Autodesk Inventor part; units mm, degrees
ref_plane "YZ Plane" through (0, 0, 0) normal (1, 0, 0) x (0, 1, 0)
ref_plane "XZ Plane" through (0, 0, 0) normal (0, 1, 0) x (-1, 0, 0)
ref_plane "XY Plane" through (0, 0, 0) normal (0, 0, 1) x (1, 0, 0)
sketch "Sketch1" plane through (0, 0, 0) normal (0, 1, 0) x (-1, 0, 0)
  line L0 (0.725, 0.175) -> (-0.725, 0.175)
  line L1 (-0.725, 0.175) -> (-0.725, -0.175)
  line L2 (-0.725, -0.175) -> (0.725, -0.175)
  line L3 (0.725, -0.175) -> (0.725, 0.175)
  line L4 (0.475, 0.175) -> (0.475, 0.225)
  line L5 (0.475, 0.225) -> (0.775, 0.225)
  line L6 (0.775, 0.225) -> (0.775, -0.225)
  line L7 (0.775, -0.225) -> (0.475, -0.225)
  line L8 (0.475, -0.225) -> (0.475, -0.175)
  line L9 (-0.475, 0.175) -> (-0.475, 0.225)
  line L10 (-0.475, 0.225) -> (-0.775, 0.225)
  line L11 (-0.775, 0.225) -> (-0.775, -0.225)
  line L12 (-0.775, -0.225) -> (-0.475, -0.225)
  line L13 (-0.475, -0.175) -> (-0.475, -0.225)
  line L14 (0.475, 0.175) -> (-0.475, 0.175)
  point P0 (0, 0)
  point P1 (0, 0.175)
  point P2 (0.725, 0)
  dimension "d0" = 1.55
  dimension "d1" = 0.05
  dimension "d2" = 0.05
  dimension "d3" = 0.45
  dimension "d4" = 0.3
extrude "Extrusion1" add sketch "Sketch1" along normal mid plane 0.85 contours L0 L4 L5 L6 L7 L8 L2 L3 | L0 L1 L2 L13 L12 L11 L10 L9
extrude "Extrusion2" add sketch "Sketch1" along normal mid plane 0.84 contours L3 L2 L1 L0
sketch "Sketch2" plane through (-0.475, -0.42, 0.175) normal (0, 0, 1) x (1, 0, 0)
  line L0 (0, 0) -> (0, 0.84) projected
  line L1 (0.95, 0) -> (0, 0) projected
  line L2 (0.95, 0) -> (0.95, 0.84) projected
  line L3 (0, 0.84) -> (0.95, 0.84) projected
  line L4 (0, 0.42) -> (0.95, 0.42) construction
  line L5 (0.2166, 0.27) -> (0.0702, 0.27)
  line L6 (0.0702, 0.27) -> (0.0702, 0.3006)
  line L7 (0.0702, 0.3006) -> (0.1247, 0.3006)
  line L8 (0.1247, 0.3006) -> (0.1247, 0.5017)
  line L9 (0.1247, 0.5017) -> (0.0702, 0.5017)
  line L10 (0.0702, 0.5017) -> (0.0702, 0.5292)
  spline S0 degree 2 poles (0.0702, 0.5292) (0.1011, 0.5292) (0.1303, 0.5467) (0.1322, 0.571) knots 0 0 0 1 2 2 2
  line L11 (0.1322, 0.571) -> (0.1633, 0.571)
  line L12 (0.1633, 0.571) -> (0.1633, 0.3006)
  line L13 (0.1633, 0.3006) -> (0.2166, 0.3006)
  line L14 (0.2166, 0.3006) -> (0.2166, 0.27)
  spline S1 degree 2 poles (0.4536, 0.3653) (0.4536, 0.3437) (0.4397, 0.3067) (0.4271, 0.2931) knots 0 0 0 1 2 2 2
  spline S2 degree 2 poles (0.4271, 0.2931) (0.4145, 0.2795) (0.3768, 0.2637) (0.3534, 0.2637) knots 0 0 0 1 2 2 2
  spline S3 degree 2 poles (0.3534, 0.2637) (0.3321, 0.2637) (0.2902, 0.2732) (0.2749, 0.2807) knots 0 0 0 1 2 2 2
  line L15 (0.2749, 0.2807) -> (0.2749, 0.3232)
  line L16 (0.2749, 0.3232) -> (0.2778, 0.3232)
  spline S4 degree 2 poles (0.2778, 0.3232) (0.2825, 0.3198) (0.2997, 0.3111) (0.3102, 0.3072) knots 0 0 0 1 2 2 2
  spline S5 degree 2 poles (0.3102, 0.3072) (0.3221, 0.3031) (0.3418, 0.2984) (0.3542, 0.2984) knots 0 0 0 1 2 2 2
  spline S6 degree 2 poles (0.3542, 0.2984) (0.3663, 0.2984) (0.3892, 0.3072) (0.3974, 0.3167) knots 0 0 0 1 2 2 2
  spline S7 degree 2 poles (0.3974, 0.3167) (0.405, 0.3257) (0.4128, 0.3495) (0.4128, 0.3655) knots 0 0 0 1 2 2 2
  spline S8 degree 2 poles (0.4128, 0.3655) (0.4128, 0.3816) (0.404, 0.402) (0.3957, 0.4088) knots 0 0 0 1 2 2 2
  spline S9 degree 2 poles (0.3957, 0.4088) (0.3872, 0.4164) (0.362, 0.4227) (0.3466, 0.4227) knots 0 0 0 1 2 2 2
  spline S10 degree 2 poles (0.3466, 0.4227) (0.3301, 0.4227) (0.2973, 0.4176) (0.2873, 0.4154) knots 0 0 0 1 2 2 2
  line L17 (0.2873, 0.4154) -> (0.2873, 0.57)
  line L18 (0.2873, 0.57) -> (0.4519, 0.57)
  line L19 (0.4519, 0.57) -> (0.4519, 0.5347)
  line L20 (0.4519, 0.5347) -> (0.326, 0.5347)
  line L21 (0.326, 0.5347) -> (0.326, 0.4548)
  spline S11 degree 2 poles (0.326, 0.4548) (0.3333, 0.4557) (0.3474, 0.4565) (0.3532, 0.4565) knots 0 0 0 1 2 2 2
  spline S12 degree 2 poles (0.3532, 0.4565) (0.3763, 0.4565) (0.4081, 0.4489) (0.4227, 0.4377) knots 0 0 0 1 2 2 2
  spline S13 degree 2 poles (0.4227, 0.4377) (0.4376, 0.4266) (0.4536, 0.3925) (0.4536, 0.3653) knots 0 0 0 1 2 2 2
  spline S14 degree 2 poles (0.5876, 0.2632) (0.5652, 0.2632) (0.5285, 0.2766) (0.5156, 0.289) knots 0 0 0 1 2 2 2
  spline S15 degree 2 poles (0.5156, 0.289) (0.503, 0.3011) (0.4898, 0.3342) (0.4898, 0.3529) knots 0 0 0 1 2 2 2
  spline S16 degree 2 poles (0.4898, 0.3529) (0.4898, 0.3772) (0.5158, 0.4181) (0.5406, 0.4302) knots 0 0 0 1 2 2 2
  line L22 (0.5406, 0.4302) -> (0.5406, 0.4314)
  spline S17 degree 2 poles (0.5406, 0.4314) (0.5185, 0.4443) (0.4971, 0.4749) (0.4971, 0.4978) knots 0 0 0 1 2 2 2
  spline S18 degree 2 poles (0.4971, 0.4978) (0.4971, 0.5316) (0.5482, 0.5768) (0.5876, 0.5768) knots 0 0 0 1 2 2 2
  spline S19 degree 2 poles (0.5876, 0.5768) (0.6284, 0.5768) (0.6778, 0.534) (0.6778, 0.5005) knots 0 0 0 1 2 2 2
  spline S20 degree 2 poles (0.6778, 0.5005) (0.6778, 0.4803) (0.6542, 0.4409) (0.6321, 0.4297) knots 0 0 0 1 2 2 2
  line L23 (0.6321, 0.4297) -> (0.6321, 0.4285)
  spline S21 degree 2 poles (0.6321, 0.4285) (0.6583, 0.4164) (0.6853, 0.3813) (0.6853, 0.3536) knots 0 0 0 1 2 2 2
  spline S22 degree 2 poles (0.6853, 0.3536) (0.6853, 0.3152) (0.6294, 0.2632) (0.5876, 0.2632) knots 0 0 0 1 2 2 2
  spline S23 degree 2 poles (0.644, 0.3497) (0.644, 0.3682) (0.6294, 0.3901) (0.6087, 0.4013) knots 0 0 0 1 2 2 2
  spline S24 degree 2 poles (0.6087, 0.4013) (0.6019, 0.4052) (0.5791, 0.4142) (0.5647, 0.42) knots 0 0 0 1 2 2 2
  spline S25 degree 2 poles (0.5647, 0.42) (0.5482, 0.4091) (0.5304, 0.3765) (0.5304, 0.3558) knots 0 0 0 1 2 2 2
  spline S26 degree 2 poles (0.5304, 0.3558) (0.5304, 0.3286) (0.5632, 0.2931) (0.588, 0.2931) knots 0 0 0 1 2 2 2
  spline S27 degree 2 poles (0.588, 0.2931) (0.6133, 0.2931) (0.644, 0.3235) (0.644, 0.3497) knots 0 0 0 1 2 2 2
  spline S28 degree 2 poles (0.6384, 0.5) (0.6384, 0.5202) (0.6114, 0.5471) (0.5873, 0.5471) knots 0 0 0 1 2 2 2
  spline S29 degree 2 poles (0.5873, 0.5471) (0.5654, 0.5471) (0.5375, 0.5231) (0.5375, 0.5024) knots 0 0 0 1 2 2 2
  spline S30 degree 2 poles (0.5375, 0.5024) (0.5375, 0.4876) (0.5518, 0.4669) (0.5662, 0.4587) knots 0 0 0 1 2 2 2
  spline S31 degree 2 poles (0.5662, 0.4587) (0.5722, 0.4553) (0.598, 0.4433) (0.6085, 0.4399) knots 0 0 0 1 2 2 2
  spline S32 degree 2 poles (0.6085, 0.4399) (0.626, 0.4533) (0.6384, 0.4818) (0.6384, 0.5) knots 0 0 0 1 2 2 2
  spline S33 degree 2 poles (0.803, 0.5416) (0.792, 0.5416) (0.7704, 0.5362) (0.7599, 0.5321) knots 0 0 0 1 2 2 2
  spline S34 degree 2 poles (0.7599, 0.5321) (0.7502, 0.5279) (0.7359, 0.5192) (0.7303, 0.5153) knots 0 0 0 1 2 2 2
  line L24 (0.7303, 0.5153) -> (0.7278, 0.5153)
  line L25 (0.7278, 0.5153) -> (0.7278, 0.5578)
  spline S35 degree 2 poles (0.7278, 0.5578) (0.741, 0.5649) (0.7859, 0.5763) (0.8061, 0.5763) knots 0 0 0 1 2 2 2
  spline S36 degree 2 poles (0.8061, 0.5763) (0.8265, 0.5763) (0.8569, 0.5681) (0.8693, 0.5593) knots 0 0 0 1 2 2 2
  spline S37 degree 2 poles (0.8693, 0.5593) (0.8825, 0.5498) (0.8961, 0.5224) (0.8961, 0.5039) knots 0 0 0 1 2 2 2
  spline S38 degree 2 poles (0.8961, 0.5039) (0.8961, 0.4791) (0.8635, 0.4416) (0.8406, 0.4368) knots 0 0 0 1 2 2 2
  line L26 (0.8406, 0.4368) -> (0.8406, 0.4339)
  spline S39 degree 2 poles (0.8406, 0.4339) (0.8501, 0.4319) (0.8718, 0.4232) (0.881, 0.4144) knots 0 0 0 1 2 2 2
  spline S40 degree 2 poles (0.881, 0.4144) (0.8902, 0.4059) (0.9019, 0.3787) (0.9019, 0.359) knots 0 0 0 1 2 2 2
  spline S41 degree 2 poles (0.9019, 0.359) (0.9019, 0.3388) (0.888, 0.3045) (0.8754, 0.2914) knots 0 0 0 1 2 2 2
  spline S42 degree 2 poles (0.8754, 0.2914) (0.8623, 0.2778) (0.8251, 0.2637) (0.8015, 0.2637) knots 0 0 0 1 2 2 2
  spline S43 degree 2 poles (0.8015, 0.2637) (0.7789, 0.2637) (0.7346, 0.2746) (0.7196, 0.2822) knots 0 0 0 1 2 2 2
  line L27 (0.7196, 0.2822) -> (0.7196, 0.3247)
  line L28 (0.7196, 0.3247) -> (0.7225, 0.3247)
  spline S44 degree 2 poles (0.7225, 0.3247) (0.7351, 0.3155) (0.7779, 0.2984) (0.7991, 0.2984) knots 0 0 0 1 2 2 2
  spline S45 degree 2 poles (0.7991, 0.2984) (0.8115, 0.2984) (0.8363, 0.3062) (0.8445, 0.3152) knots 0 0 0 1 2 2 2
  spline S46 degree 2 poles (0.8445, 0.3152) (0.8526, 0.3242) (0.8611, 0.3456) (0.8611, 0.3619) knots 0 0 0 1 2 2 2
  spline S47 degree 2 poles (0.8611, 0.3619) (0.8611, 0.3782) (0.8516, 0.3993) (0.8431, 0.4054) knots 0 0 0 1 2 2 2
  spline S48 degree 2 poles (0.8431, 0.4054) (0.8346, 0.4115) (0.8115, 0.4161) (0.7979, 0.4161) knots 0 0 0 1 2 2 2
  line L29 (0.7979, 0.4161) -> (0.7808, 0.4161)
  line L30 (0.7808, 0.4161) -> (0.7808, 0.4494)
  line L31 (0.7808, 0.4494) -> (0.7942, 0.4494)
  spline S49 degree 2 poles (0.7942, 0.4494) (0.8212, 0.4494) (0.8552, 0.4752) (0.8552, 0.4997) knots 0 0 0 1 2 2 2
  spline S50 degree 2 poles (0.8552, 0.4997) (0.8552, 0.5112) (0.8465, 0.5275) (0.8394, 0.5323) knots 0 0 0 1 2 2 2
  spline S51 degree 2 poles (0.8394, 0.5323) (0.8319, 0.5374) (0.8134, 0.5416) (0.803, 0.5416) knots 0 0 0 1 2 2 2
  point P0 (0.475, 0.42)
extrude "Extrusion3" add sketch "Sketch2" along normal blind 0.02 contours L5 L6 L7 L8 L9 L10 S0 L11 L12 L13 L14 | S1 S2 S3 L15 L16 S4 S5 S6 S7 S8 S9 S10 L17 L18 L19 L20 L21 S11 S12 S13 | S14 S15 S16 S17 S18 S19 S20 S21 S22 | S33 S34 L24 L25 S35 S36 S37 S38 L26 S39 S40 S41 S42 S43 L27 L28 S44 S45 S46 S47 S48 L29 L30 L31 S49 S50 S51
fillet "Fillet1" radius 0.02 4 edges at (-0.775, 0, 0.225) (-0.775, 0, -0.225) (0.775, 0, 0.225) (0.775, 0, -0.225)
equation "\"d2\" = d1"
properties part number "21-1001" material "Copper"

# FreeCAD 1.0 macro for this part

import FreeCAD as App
import Part
import Sketcher
from FreeCAD import Vector


def edges_at(feature, points):
    """Names of the edges that pass closest to the given points."""
    edges = feature.Shape.Edges
    near = lambda p: min(range(len(edges)), key=lambda i: edges[i].distToShape(Part.Vertex(*p))[0])
    return sorted({f"Edge{near(p) + 1}" for p in points})

doc = App.newDocument("Part")
body = doc.addObject("PartDesign::Body", "Body")
body.AllowCompound = True

# Sketch on XZ plane
sketch1 = body.newObject("Sketcher::SketchObject", "Sketch")
sketch1.AttachmentSupport = (doc.getObject("XZ_Plane"), [""])
sketch1.MapMode = "FlatFace"
sketch1.addGeometry(Part.LineSegment(Vector(-0.47, 0.17, 0), Vector(-0.72, 0.17, 0)), False)
sketch1.addGeometry(Part.LineSegment(Vector(-0.72, 0.17, 0), Vector(-0.72, -0.17, 0)), False)
sketch1.addGeometry(Part.LineSegment(Vector(-0.72, -0.17, 0), Vector(-0.47, -0.17, 0)), False)
sketch1.addGeometry(Part.LineSegment(Vector(-0.47, -0.17, 0), Vector(-0.47, -0.23, 0)), False)
sketch1.addGeometry(Part.LineSegment(Vector(-0.47, -0.23, 0), Vector(-0.78, -0.23, 0)), False)
sketch1.addGeometry(Part.LineSegment(Vector(-0.78, -0.23, 0), Vector(-0.78, 0.23, 0)), False)
sketch1.addGeometry(Part.LineSegment(Vector(-0.78, 0.23, 0), Vector(-0.47, 0.23, 0)), False)
sketch1.addGeometry(Part.LineSegment(Vector(-0.47, 0.23, 0), Vector(-0.47, 0.17, 0)), False)
sketch1.addGeometry(Part.LineSegment(Vector(0.72, 0.17, 0), Vector(0.47, 0.17, 0)), False)
sketch1.addGeometry(Part.LineSegment(Vector(0.47, 0.17, 0), Vector(0.47, 0.23, 0)), False)
sketch1.addGeometry(Part.LineSegment(Vector(0.47, 0.23, 0), Vector(0.78, 0.23, 0)), False)
sketch1.addGeometry(Part.LineSegment(Vector(0.78, 0.23, 0), Vector(0.78, -0.23, 0)), False)
sketch1.addGeometry(Part.LineSegment(Vector(0.78, -0.23, 0), Vector(0.47, -0.23, 0)), False)
sketch1.addGeometry(Part.LineSegment(Vector(0.47, -0.23, 0), Vector(0.47, -0.17, 0)), False)
sketch1.addGeometry(Part.LineSegment(Vector(0.47, -0.17, 0), Vector(0.72, -0.17, 0)), False)
sketch1.addGeometry(Part.LineSegment(Vector(0.72, -0.17, 0), Vector(0.72, 0.17, 0)), False)
sketch1.addConstraint(Sketcher.Constraint("Coincident", 0, 2, 1, 1))
sketch1.addConstraint(Sketcher.Constraint("Coincident", 1, 2, 2, 1))
sketch1.addConstraint(Sketcher.Constraint("Coincident", 2, 2, 3, 1))
sketch1.addConstraint(Sketcher.Constraint("Coincident", 3, 2, 4, 1))
sketch1.addConstraint(Sketcher.Constraint("Coincident", 4, 2, 5, 1))
sketch1.addConstraint(Sketcher.Constraint("Coincident", 5, 2, 6, 1))
sketch1.addConstraint(Sketcher.Constraint("Coincident", 6, 2, 7, 1))
sketch1.addConstraint(Sketcher.Constraint("Coincident", 7, 2, 0, 1))
sketch1.addConstraint(Sketcher.Constraint("Coincident", 8, 2, 9, 1))
sketch1.addConstraint(Sketcher.Constraint("Coincident", 9, 2, 10, 1))
sketch1.addConstraint(Sketcher.Constraint("Coincident", 10, 2, 11, 1))
sketch1.addConstraint(Sketcher.Constraint("Coincident", 11, 2, 12, 1))
sketch1.addConstraint(Sketcher.Constraint("Coincident", 12, 2, 13, 1))
sketch1.addConstraint(Sketcher.Constraint("Coincident", 13, 2, 14, 1))
sketch1.addConstraint(Sketcher.Constraint("Coincident", 14, 2, 15, 1))
sketch1.addConstraint(Sketcher.Constraint("Coincident", 15, 2, 8, 1))
sketch1.addConstraint(Sketcher.Constraint("Horizontal", 0))
sketch1.addConstraint(Sketcher.Constraint("Vertical", 1))
sketch1.addConstraint(Sketcher.Constraint("Horizontal", 2))
sketch1.addConstraint(Sketcher.Constraint("Vertical", 3))
sketch1.addConstraint(Sketcher.Constraint("Horizontal", 4))
sketch1.addConstraint(Sketcher.Constraint("Vertical", 5))
sketch1.addConstraint(Sketcher.Constraint("Horizontal", 6))
sketch1.addConstraint(Sketcher.Constraint("Vertical", 7))
sketch1.addConstraint(Sketcher.Constraint("Horizontal", 8))
sketch1.addConstraint(Sketcher.Constraint("Vertical", 9))
sketch1.addConstraint(Sketcher.Constraint("Horizontal", 10))
sketch1.addConstraint(Sketcher.Constraint("Vertical", 11))
sketch1.addConstraint(Sketcher.Constraint("Horizontal", 12))
sketch1.addConstraint(Sketcher.Constraint("Vertical", 13))
sketch1.addConstraint(Sketcher.Constraint("Horizontal", 14))
sketch1.addConstraint(Sketcher.Constraint("Vertical", 15))
sketch1.addConstraint(Sketcher.Constraint("Symmetric", 2, 2, 8, 2, -1, 1))
sketch1.addConstraint(Sketcher.Constraint("Symmetric", 4, 2, 10, 2, -1, 1))
sketch1.addConstraint(Sketcher.Constraint("Symmetric", 6, 2, 12, 2, -1, 1))
sketch1.addConstraint(Sketcher.Constraint("Symmetric", 0, 2, 14, 2, -1, 1))
sketch1.addConstraint(Sketcher.Constraint("Symmetric", 7, 2, 8, 2, -2))
sketch1.addConstraint(Sketcher.Constraint("Horizontal", 6, 2, 9, 2))
sketch1.addConstraint(Sketcher.Constraint("DistanceX", 4, 2, 4, 1, 0.3))
sketch1.addConstraint(Sketcher.Constraint("DistanceY", 3, 2, 3, 1, 0.05))
sketch1.addConstraint(Sketcher.Constraint("DistanceY", 5, 1, 5, 2, 0.45))
sketch1.addConstraint(Sketcher.Constraint("DistanceX", 4, 2, 1, 2, 0.05))
sketch1.addConstraint(Sketcher.Constraint("DistanceX", 0, 2, 8, 2, 1.2))
pad1 = body.newObject("PartDesign::Pad", "Pad")
pad1.Profile = sketch1
pad1.Length = 0.85
pad1.Midplane = True

# Sketch on XZ plane
sketch2 = body.newObject("Sketcher::SketchObject", "Sketch001")
sketch2.AttachmentSupport = (doc.getObject("XZ_Plane"), [""])
sketch2.MapMode = "FlatFace"
sketch2.addGeometry(Part.LineSegment(Vector(-0.72, -0.17, 0), Vector(-0.72, 0.17, 0)), False)
sketch2.addGeometry(Part.LineSegment(Vector(-0.72, 0.17, 0), Vector(0.72, 0.17, 0)), False)
sketch2.addGeometry(Part.LineSegment(Vector(0.72, 0.17, 0), Vector(0.72, -0.17, 0)), False)
sketch2.addGeometry(Part.LineSegment(Vector(0.72, -0.17, 0), Vector(-0.72, -0.17, 0)), False)
sketch2.addConstraint(Sketcher.Constraint("Coincident", 0, 2, 1, 1))
sketch2.addConstraint(Sketcher.Constraint("Coincident", 1, 2, 2, 1))
sketch2.addConstraint(Sketcher.Constraint("Coincident", 2, 2, 3, 1))
sketch2.addConstraint(Sketcher.Constraint("Coincident", 3, 2, 0, 1))
sketch2.addConstraint(Sketcher.Constraint("Vertical", 0))
sketch2.addConstraint(Sketcher.Constraint("Horizontal", 1))
sketch2.addConstraint(Sketcher.Constraint("Vertical", 2))
sketch2.addConstraint(Sketcher.Constraint("Horizontal", 3))
sketch2.addConstraint(Sketcher.Constraint("Symmetric", 0, 2, 2, 2, -1, 1))
sketch2.addConstraint(Sketcher.Constraint("DistanceX", 1, 1, 1, 2, 1.45))
sketch2.addConstraint(Sketcher.Constraint("DistanceY", 0, 1, 0, 2, 0.35))
pad2 = body.newObject("PartDesign::Pad", "Pad001")
pad2.Profile = sketch2
pad2.Length = 0.84
pad2.Midplane = True

# Sketch on XY plane
sketch3 = body.newObject("Sketcher::SketchObject", "Sketch002")
sketch3.AttachmentSupport = (doc.getObject("XY_Plane"), [""])
sketch3.MapMode = "FlatFace"
sketch3.AttachmentOffset = App.Placement(Vector(0, 0, 0.175), App.Rotation())
sketch3.addGeometry(Part.LineSegment(Vector(-0.4048, -0.15, 0), Vector(-0.2584, -0.15, 0)), False)
sketch3.addGeometry(Part.LineSegment(Vector(-0.2584, -0.15, 0), Vector(-0.2584, -0.1194, 0)), False)
sketch3.addGeometry(Part.LineSegment(Vector(-0.2584, -0.1194, 0), Vector(-0.3117, -0.1194, 0)), False)
sketch3.addGeometry(Part.LineSegment(Vector(-0.3117, -0.1194, 0), Vector(-0.3117, 0.151, 0)), False)
sketch3.addGeometry(Part.LineSegment(Vector(-0.3117, 0.151, 0), Vector(-0.3428, 0.151, 0)), False)
sketch3.addGeometry(Part.BSplineCurve([Vector(-0.4048, 0.1092, 0), Vector(-0.3739, 0.1092, 0), Vector(-0.3447, 0.1267, 0), Vector(-0.3428, 0.151, 0)], [3, 1, 3], [0, 1, 2], False, 2, [1, 1, 1, 1], False), False)
sketch3.addGeometry(Part.LineSegment(Vector(-0.4048, 0.1092, 0), Vector(-0.4048, 0.0817, 0)), False)
sketch3.addGeometry(Part.LineSegment(Vector(-0.4048, 0.0817, 0), Vector(-0.3503, 0.0817, 0)), False)
sketch3.addGeometry(Part.LineSegment(Vector(-0.3503, 0.0817, 0), Vector(-0.3503, -0.1194, 0)), False)
sketch3.addGeometry(Part.LineSegment(Vector(-0.3503, -0.1194, 0), Vector(-0.4048, -0.1194, 0)), False)
sketch3.addGeometry(Part.LineSegment(Vector(-0.4048, -0.1194, 0), Vector(-0.4048, -0.15, 0)), False)
sketch3.addGeometry(Part.BSplineCurve([Vector(-0.0214, -0.0547, 0), Vector(-0.0214, -0.0763, 0), Vector(-0.0353, -0.1133, 0), Vector(-0.0479, -0.1269, 0)], [3, 1, 3], [0, 1, 2], False, 2, [1, 1, 1, 1], False), False)
sketch3.addGeometry(Part.BSplineCurve([Vector(-0.0523, 0.0177, 0), Vector(-0.0374, 0.0066, 0), Vector(-0.0214, -0.0275, 0), Vector(-0.0214, -0.0547, 0)], [3, 1, 3], [0, 1, 2], False, 2, [1, 1, 1, 1], False), False)
sketch3.addGeometry(Part.BSplineCurve([Vector(-0.1218, 0.0365, 0), Vector(-0.0987, 0.0365, 0), Vector(-0.0669, 0.0289, 0), Vector(-0.0523, 0.0177, 0)], [3, 1, 3], [0, 1, 2], False, 2, [1, 1, 1, 1], False), False)
sketch3.addGeometry(Part.BSplineCurve([Vector(-0.149, 0.0348, 0), Vector(-0.1417, 0.0357, 0), Vector(-0.1276, 0.0365, 0), Vector(-0.1218, 0.0365, 0)], [3, 1, 3], [0, 1, 2], False, 2, [1, 1, 1, 1], False), False)
sketch3.addGeometry(Part.LineSegment(Vector(-0.149, 0.0348, 0), Vector(-0.149, 0.1147, 0)), False)
sketch3.addGeometry(Part.LineSegment(Vector(-0.149, 0.1147, 0), Vector(-0.0231, 0.1147, 0)), False)
sketch3.addGeometry(Part.LineSegment(Vector(-0.0231, 0.1147, 0), Vector(-0.0231, 0.15, 0)), False)
sketch3.addGeometry(Part.LineSegment(Vector(-0.0231, 0.15, 0), Vector(-0.1877, 0.15, 0)), False)
sketch3.addGeometry(Part.LineSegment(Vector(-0.1877, 0.15, 0), Vector(-0.1877, -0.0046, 0)), False)
sketch3.addGeometry(Part.BSplineCurve([Vector(-0.1284, 0.0027, 0), Vector(-0.1449, 0.0027, 0), Vector(-0.1777, -0.0024, 0), Vector(-0.1877, -0.0046, 0)], [3, 1, 3], [0, 1, 2], False, 2, [1, 1, 1, 1], False), False)
sketch3.addGeometry(Part.BSplineCurve([Vector(-0.0793, -0.0112, 0), Vector(-0.0878, -0.0036, 0), Vector(-0.113, 0.0027, 0), Vector(-0.1284, 0.0027, 0)], [3, 1, 3], [0, 1, 2], False, 2, [1, 1, 1, 1], False), False)
sketch3.addGeometry(Part.BSplineCurve([Vector(-0.0622, -0.0545, 0), Vector(-0.0622, -0.0384, 0), Vector(-0.071, -0.018, 0), Vector(-0.0793, -0.0112, 0)], [3, 1, 3], [0, 1, 2], False, 2, [1, 1, 1, 1], False), False)
sketch3.addGeometry(Part.BSplineCurve([Vector(-0.0776, -0.1033, 0), Vector(-0.07, -0.0943, 0), Vector(-0.0622, -0.0705, 0), Vector(-0.0622, -0.0545, 0)], [3, 1, 3], [0, 1, 2], False, 2, [1, 1, 1, 1], False), False)
sketch3.addGeometry(Part.BSplineCurve([Vector(-0.1208, -0.1216, 0), Vector(-0.1087, -0.1216, 0), Vector(-0.0858, -0.1128, 0), Vector(-0.0776, -0.1033, 0)], [3, 1, 3], [0, 1, 2], False, 2, [1, 1, 1, 1], False), False)
sketch3.addGeometry(Part.BSplineCurve([Vector(-0.1648, -0.1128, 0), Vector(-0.1529, -0.1169, 0), Vector(-0.1332, -0.1216, 0), Vector(-0.1208, -0.1216, 0)], [3, 1, 3], [0, 1, 2], False, 2, [1, 1, 1, 1], False), False)
sketch3.addGeometry(Part.BSplineCurve([Vector(-0.1972, -0.0968, 0), Vector(-0.1925, -0.1002, 0), Vector(-0.1753, -0.1089, 0), Vector(-0.1648, -0.1128, 0)], [3, 1, 3], [0, 1, 2], False, 2, [1, 1, 1, 1], False), False)
sketch3.addGeometry(Part.LineSegment(Vector(-0.1972, -0.0968, 0), Vector(-0.2001, -0.0968, 0)), False)
sketch3.addGeometry(Part.LineSegment(Vector(-0.2001, -0.0968, 0), Vector(-0.2001, -0.1393, 0)), False)
sketch3.addGeometry(Part.BSplineCurve([Vector(-0.1216, -0.1563, 0), Vector(-0.1429, -0.1563, 0), Vector(-0.1848, -0.1468, 0), Vector(-0.2001, -0.1393, 0)], [3, 1, 3], [0, 1, 2], False, 2, [1, 1, 1, 1], False), False)
sketch3.addGeometry(Part.BSplineCurve([Vector(-0.0479, -0.1269, 0), Vector(-0.0605, -0.1405, 0), Vector(-0.0982, -0.1563, 0), Vector(-0.1216, -0.1563, 0)], [3, 1, 3], [0, 1, 2], False, 2, [1, 1, 1, 1], False), False)
sketch3.addGeometry(Part.BSplineCurve([Vector(0.1126, -0.1568, 0), Vector(0.0902, -0.1568, 0), Vector(0.0535, -0.1434, 0), Vector(0.0406, -0.131, 0)], [3, 1, 3], [0, 1, 2], False, 2, [1, 1, 1, 1], False), False)
sketch3.addGeometry(Part.BSplineCurve([Vector(0.2103, -0.0664, 0), Vector(0.2103, -0.1048, 0), Vector(0.1544, -0.1568, 0), Vector(0.1126, -0.1568, 0)], [3, 1, 3], [0, 1, 2], False, 2, [1, 1, 1, 1], False), False)
sketch3.addGeometry(Part.BSplineCurve([Vector(0.1571, 0.0097, 0), Vector(0.1833, -0.0036, 0), Vector(0.2103, -0.0387, 0), Vector(0.2103, -0.0664, 0)], [3, 1, 3], [0, 1, 2], False, 2, [1, 1, 1, 1], False), False)
sketch3.addGeometry(Part.BSplineCurve([Vector(0.2028, 0.0805, 0), Vector(0.2028, 0.0603, 0), Vector(0.1792, 0.0209, 0), Vector(0.1571, 0.0097, 0)], [3, 1, 3], [0, 1, 2], False, 2, [1, 1, 1, 1], False), False)
sketch3.addGeometry(Part.BSplineCurve([Vector(0.1126, 0.1568, 0), Vector(0.1534, 0.1568, 0), Vector(0.2028, 0.114, 0), Vector(0.2028, 0.0805, 0)], [3, 1, 3], [0, 1, 2], False, 2, [1, 1, 1, 1], False), False)
sketch3.addGeometry(Part.BSplineCurve([Vector(0.0221, 0.0778, 0), Vector(0.0221, 0.1116, 0), Vector(0.0732, 0.1568, 0), Vector(0.1126, 0.1568, 0)], [3, 1, 3], [0, 1, 2], False, 2, [1, 1, 1, 1], False), False)
sketch3.addGeometry(Part.BSplineCurve([Vector(0.0656, 0.0102, 0), Vector(0.0435, 0.0243, 0), Vector(0.0221, 0.0549, 0), Vector(0.0221, 0.0778, 0)], [3, 1, 3], [0, 1, 2], False, 2, [1, 1, 1, 1], False), False)
sketch3.addGeometry(Part.BSplineCurve([Vector(0.0148, -0.0671, 0), Vector(0.0148, -0.0428, 0), Vector(0.0408, -0.0019, 0), Vector(0.0656, 0.0102, 0)], [3, 1, 3], [0, 1, 2], False, 2, [1, 1, 1, 1], False), False)
sketch3.addGeometry(Part.BSplineCurve([Vector(0.0406, -0.131, 0), Vector(0.028, -0.1189, 0), Vector(0.0148, -0.0858, 0), Vector(0.0148, -0.0671, 0)], [3, 1, 3], [0, 1, 2], False, 2, [1, 1, 1, 1], False), False)
sketch3.addGeometry(Part.BSplineCurve([Vector(0.169, -0.0703, 0), Vector(0.169, -0.0518, 0), Vector(0.1544, -0.0299, 0), Vector(0.1337, -0.0187, 0)], [3, 1, 3], [0, 1, 2], False, 2, [1, 1, 1, 1], False), False)
sketch3.addGeometry(Part.BSplineCurve([Vector(0.113, -0.1269, 0), Vector(0.1383, -0.1269, 0), Vector(0.169, -0.0965, 0), Vector(0.169, -0.0703, 0)], [3, 1, 3], [0, 1, 2], False, 2, [1, 1, 1, 1], False), False)
sketch3.addGeometry(Part.BSplineCurve([Vector(0.0554, -0.0642, 0), Vector(0.0554, -0.0914, 0), Vector(0.0882, -0.1269, 0), Vector(0.113, -0.1269, 0)], [3, 1, 3], [0, 1, 2], False, 2, [1, 1, 1, 1], False), False)
sketch3.addGeometry(Part.BSplineCurve([Vector(0.0897, 0, 0), Vector(0.0732, -0.0109, 0), Vector(0.0554, -0.0435, 0), Vector(0.0554, -0.0642, 0)], [3, 1, 3], [0, 1, 2], False, 2, [1, 1, 1, 1], False), False)
sketch3.addGeometry(Part.BSplineCurve([Vector(0.1337, -0.0187, 0), Vector(0.1269, -0.0148, 0), Vector(0.1041, -0.0058, 0), Vector(0.0897, 0, 0)], [3, 1, 3], [0, 1, 2], False, 2, [1, 1, 1, 1], False), False)
sketch3.addGeometry(Part.BSplineCurve([Vector(0.1634, 0.08, 0), Vector(0.1634, 0.1002, 0), Vector(0.1364, 0.1271, 0), Vector(0.1123, 0.1271, 0)], [3, 1, 3], [0, 1, 2], False, 2, [1, 1, 1, 1], False), False)
sketch3.addGeometry(Part.BSplineCurve([Vector(0.1335, 0.0199, 0), Vector(0.151, 0.0333, 0), Vector(0.1634, 0.0618, 0), Vector(0.1634, 0.08, 0)], [3, 1, 3], [0, 1, 2], False, 2, [1, 1, 1, 1], False), False)
sketch3.addGeometry(Part.BSplineCurve([Vector(0.0912, 0.0387, 0), Vector(0.0972, 0.0353, 0), Vector(0.123, 0.0233, 0), Vector(0.1335, 0.0199, 0)], [3, 1, 3], [0, 1, 2], False, 2, [1, 1, 1, 1], False), False)
sketch3.addGeometry(Part.BSplineCurve([Vector(0.0625, 0.0824, 0), Vector(0.0625, 0.0676, 0), Vector(0.0768, 0.0469, 0), Vector(0.0912, 0.0387, 0)], [3, 1, 3], [0, 1, 2], False, 2, [1, 1, 1, 1], False), False)
sketch3.addGeometry(Part.BSplineCurve([Vector(0.1123, 0.1271, 0), Vector(0.0904, 0.1271, 0), Vector(0.0625, 0.1031, 0), Vector(0.0625, 0.0824, 0)], [3, 1, 3], [0, 1, 2], False, 2, [1, 1, 1, 1], False), False)
sketch3.addGeometry(Part.BSplineCurve([Vector(0.328, 0.1216, 0), Vector(0.317, 0.1216, 0), Vector(0.2954, 0.1162, 0), Vector(0.2849, 0.1121, 0)], [3, 1, 3], [0, 1, 2], False, 2, [1, 1, 1, 1], False), False)
sketch3.addGeometry(Part.BSplineCurve([Vector(0.3644, 0.1123, 0), Vector(0.3569, 0.1174, 0), Vector(0.3384, 0.1216, 0), Vector(0.328, 0.1216, 0)], [3, 1, 3], [0, 1, 2], False, 2, [1, 1, 1, 1], False), False)
sketch3.addGeometry(Part.BSplineCurve([Vector(0.3802, 0.0797, 0), Vector(0.3802, 0.0912, 0), Vector(0.3715, 0.1075, 0), Vector(0.3644, 0.1123, 0)], [3, 1, 3], [0, 1, 2], False, 2, [1, 1, 1, 1], False), False)
sketch3.addGeometry(Part.BSplineCurve([Vector(0.3192, 0.0294, 0), Vector(0.3462, 0.0294, 0), Vector(0.3802, 0.0552, 0), Vector(0.3802, 0.0797, 0)], [3, 1, 3], [0, 1, 2], False, 2, [1, 1, 1, 1], False), False)
sketch3.addGeometry(Part.LineSegment(Vector(0.3192, 0.0294, 0), Vector(0.3058, 0.0294, 0)), False)
sketch3.addGeometry(Part.LineSegment(Vector(0.3058, 0.0294, 0), Vector(0.3058, -0.0039, 0)), False)
sketch3.addGeometry(Part.LineSegment(Vector(0.3058, -0.0039, 0), Vector(0.3229, -0.0039, 0)), False)
sketch3.addGeometry(Part.BSplineCurve([Vector(0.3681, -0.0146, 0), Vector(0.3596, -0.0085, 0), Vector(0.3365, -0.0039, 0), Vector(0.3229, -0.0039, 0)], [3, 1, 3], [0, 1, 2], False, 2, [1, 1, 1, 1], False), False)
sketch3.addGeometry(Part.BSplineCurve([Vector(0.3861, -0.0581, 0), Vector(0.3861, -0.0418, 0), Vector(0.3766, -0.0207, 0), Vector(0.3681, -0.0146, 0)], [3, 1, 3], [0, 1, 2], False, 2, [1, 1, 1, 1], False), False)
sketch3.addGeometry(Part.BSplineCurve([Vector(0.3695, -0.1048, 0), Vector(0.3776, -0.0958, 0), Vector(0.3861, -0.0744, 0), Vector(0.3861, -0.0581, 0)], [3, 1, 3], [0, 1, 2], False, 2, [1, 1, 1, 1], False), False)
sketch3.addGeometry(Part.BSplineCurve([Vector(0.3241, -0.1216, 0), Vector(0.3365, -0.1216, 0), Vector(0.3613, -0.1138, 0), Vector(0.3695, -0.1048, 0)], [3, 1, 3], [0, 1, 2], False, 2, [1, 1, 1, 1], False), False)
sketch3.addGeometry(Part.BSplineCurve([Vector(0.2475, -0.0953, 0), Vector(0.2601, -0.1045, 0), Vector(0.3029, -0.1216, 0), Vector(0.3241, -0.1216, 0)], [3, 1, 3], [0, 1, 2], False, 2, [1, 1, 1, 1], False), False)
sketch3.addGeometry(Part.LineSegment(Vector(0.2475, -0.0953, 0), Vector(0.2446, -0.0953, 0)), False)
sketch3.addGeometry(Part.LineSegment(Vector(0.2446, -0.0953, 0), Vector(0.2446, -0.1378, 0)), False)
sketch3.addGeometry(Part.BSplineCurve([Vector(0.3265, -0.1563, 0), Vector(0.3039, -0.1563, 0), Vector(0.2596, -0.1454, 0), Vector(0.2446, -0.1378, 0)], [3, 1, 3], [0, 1, 2], False, 2, [1, 1, 1, 1], False), False)
sketch3.addGeometry(Part.BSplineCurve([Vector(0.4004, -0.1286, 0), Vector(0.3873, -0.1422, 0), Vector(0.3501, -0.1563, 0), Vector(0.3265, -0.1563, 0)], [3, 1, 3], [0, 1, 2], False, 2, [1, 1, 1, 1], False), False)
sketch3.addGeometry(Part.BSplineCurve([Vector(0.4269, -0.061, 0), Vector(0.4269, -0.0812, 0), Vector(0.413, -0.1155, 0), Vector(0.4004, -0.1286, 0)], [3, 1, 3], [0, 1, 2], False, 2, [1, 1, 1, 1], False), False)
sketch3.addGeometry(Part.BSplineCurve([Vector(0.406, -0.0056, 0), Vector(0.4152, -0.0141, 0), Vector(0.4269, -0.0413, 0), Vector(0.4269, -0.061, 0)], [3, 1, 3], [0, 1, 2], False, 2, [1, 1, 1, 1], False), False)
sketch3.addGeometry(Part.BSplineCurve([Vector(0.3656, 0.0139, 0), Vector(0.3751, 0.0119, 0), Vector(0.3968, 0.0032, 0), Vector(0.406, -0.0056, 0)], [3, 1, 3], [0, 1, 2], False, 2, [1, 1, 1, 1], False), False)
sketch3.addGeometry(Part.LineSegment(Vector(0.3656, 0.0139, 0), Vector(0.3656, 0.0168, 0)), False)
sketch3.addGeometry(Part.BSplineCurve([Vector(0.4211, 0.0839, 0), Vector(0.4211, 0.0591, 0), Vector(0.3885, 0.0216, 0), Vector(0.3656, 0.0168, 0)], [3, 1, 3], [0, 1, 2], False, 2, [1, 1, 1, 1], False), False)
sketch3.addGeometry(Part.BSplineCurve([Vector(0.3943, 0.1393, 0), Vector(0.4075, 0.1298, 0), Vector(0.4211, 0.1024, 0), Vector(0.4211, 0.0839, 0)], [3, 1, 3], [0, 1, 2], False, 2, [1, 1, 1, 1], False), False)
sketch3.addGeometry(Part.BSplineCurve([Vector(0.3311, 0.1563, 0), Vector(0.3515, 0.1563, 0), Vector(0.3819, 0.1481, 0), Vector(0.3943, 0.1393, 0)], [3, 1, 3], [0, 1, 2], False, 2, [1, 1, 1, 1], False), False)
sketch3.addGeometry(Part.BSplineCurve([Vector(0.2528, 0.1378, 0), Vector(0.266, 0.1449, 0), Vector(0.3109, 0.1563, 0), Vector(0.3311, 0.1563, 0)], [3, 1, 3], [0, 1, 2], False, 2, [1, 1, 1, 1], False), False)
sketch3.addGeometry(Part.LineSegment(Vector(0.2528, 0.1378, 0), Vector(0.2528, 0.0953, 0)), False)
sketch3.addGeometry(Part.LineSegment(Vector(0.2528, 0.0953, 0), Vector(0.2553, 0.0953, 0)), False)
sketch3.addGeometry(Part.BSplineCurve([Vector(0.2849, 0.1121, 0), Vector(0.2752, 0.1079, 0), Vector(0.2609, 0.0992, 0), Vector(0.2553, 0.0953, 0)], [3, 1, 3], [0, 1, 2], False, 2, [1, 1, 1, 1], False), False)
sketch3.addConstraint(Sketcher.Constraint("Block", 5))
sketch3.addConstraint(Sketcher.Constraint("Block", 11))
sketch3.addConstraint(Sketcher.Constraint("Block", 12))
sketch3.addConstraint(Sketcher.Constraint("Block", 13))
sketch3.addConstraint(Sketcher.Constraint("Block", 14))
sketch3.addConstraint(Sketcher.Constraint("Block", 20))
sketch3.addConstraint(Sketcher.Constraint("Block", 21))
sketch3.addConstraint(Sketcher.Constraint("Block", 22))
sketch3.addConstraint(Sketcher.Constraint("Block", 23))
sketch3.addConstraint(Sketcher.Constraint("Block", 24))
sketch3.addConstraint(Sketcher.Constraint("Block", 25))
sketch3.addConstraint(Sketcher.Constraint("Block", 26))
sketch3.addConstraint(Sketcher.Constraint("Block", 29))
sketch3.addConstraint(Sketcher.Constraint("Block", 30))
sketch3.addConstraint(Sketcher.Constraint("Block", 31))
sketch3.addConstraint(Sketcher.Constraint("Block", 32))
sketch3.addConstraint(Sketcher.Constraint("Block", 33))
sketch3.addConstraint(Sketcher.Constraint("Block", 34))
sketch3.addConstraint(Sketcher.Constraint("Block", 35))
sketch3.addConstraint(Sketcher.Constraint("Block", 36))
sketch3.addConstraint(Sketcher.Constraint("Block", 37))
sketch3.addConstraint(Sketcher.Constraint("Block", 38))
sketch3.addConstraint(Sketcher.Constraint("Block", 39))
sketch3.addConstraint(Sketcher.Constraint("Block", 40))
sketch3.addConstraint(Sketcher.Constraint("Block", 41))
sketch3.addConstraint(Sketcher.Constraint("Block", 42))
sketch3.addConstraint(Sketcher.Constraint("Block", 43))
sketch3.addConstraint(Sketcher.Constraint("Block", 44))
sketch3.addConstraint(Sketcher.Constraint("Block", 45))
sketch3.addConstraint(Sketcher.Constraint("Block", 46))
sketch3.addConstraint(Sketcher.Constraint("Block", 47))
sketch3.addConstraint(Sketcher.Constraint("Block", 48))
sketch3.addConstraint(Sketcher.Constraint("Block", 49))
sketch3.addConstraint(Sketcher.Constraint("Block", 50))
sketch3.addConstraint(Sketcher.Constraint("Block", 51))
sketch3.addConstraint(Sketcher.Constraint("Block", 52))
sketch3.addConstraint(Sketcher.Constraint("Block", 53))
sketch3.addConstraint(Sketcher.Constraint("Block", 57))
sketch3.addConstraint(Sketcher.Constraint("Block", 58))
sketch3.addConstraint(Sketcher.Constraint("Block", 59))
sketch3.addConstraint(Sketcher.Constraint("Block", 60))
sketch3.addConstraint(Sketcher.Constraint("Block", 61))
sketch3.addConstraint(Sketcher.Constraint("Block", 64))
sketch3.addConstraint(Sketcher.Constraint("Block", 65))
sketch3.addConstraint(Sketcher.Constraint("Block", 66))
sketch3.addConstraint(Sketcher.Constraint("Block", 67))
sketch3.addConstraint(Sketcher.Constraint("Block", 68))
sketch3.addConstraint(Sketcher.Constraint("Block", 70))
sketch3.addConstraint(Sketcher.Constraint("Block", 71))
sketch3.addConstraint(Sketcher.Constraint("Block", 72))
sketch3.addConstraint(Sketcher.Constraint("Block", 73))
sketch3.addConstraint(Sketcher.Constraint("Block", 76))
sketch3.addConstraint(Sketcher.Constraint("Coincident", 0, 2, 1, 1))
sketch3.addConstraint(Sketcher.Constraint("Coincident", 1, 2, 2, 1))
sketch3.addConstraint(Sketcher.Constraint("Coincident", 2, 2, 3, 1))
sketch3.addConstraint(Sketcher.Constraint("Coincident", 3, 2, 4, 1))
sketch3.addConstraint(Sketcher.Constraint("Coincident", 4, 2, 5, 2))
sketch3.addConstraint(Sketcher.Constraint("Coincident", 5, 1, 6, 1))
sketch3.addConstraint(Sketcher.Constraint("Coincident", 6, 2, 7, 1))
sketch3.addConstraint(Sketcher.Constraint("Coincident", 7, 2, 8, 1))
sketch3.addConstraint(Sketcher.Constraint("Coincident", 8, 2, 9, 1))
sketch3.addConstraint(Sketcher.Constraint("Coincident", 9, 2, 10, 1))
sketch3.addConstraint(Sketcher.Constraint("Coincident", 10, 2, 0, 1))
sketch3.addConstraint(Sketcher.Constraint("Coincident", 14, 1, 15, 1))
sketch3.addConstraint(Sketcher.Constraint("Coincident", 15, 2, 16, 1))
sketch3.addConstraint(Sketcher.Constraint("Coincident", 16, 2, 17, 1))
sketch3.addConstraint(Sketcher.Constraint("Coincident", 17, 2, 18, 1))
sketch3.addConstraint(Sketcher.Constraint("Coincident", 18, 2, 19, 1))
sketch3.addConstraint(Sketcher.Constraint("Coincident", 19, 2, 20, 2))
sketch3.addConstraint(Sketcher.Constraint("Coincident", 26, 1, 27, 1))
sketch3.addConstraint(Sketcher.Constraint("Coincident", 27, 2, 28, 1))
sketch3.addConstraint(Sketcher.Constraint("Coincident", 28, 2, 29, 2))
sketch3.addConstraint(Sketcher.Constraint("Coincident", 53, 1, 54, 1))
sketch3.addConstraint(Sketcher.Constraint("Coincident", 54, 2, 55, 1))
sketch3.addConstraint(Sketcher.Constraint("Coincident", 55, 2, 56, 1))
sketch3.addConstraint(Sketcher.Constraint("Coincident", 56, 2, 57, 2))
sketch3.addConstraint(Sketcher.Constraint("Coincident", 61, 1, 62, 1))
sketch3.addConstraint(Sketcher.Constraint("Coincident", 62, 2, 63, 1))
sketch3.addConstraint(Sketcher.Constraint("Coincident", 63, 2, 64, 2))
sketch3.addConstraint(Sketcher.Constraint("Coincident", 68, 1, 69, 1))
sketch3.addConstraint(Sketcher.Constraint("Coincident", 69, 2, 70, 2))
sketch3.addConstraint(Sketcher.Constraint("Coincident", 73, 1, 74, 1))
sketch3.addConstraint(Sketcher.Constraint("Coincident", 74, 2, 75, 1))
sketch3.addConstraint(Sketcher.Constraint("Coincident", 75, 2, 76, 2))
sketch3.addConstraint(Sketcher.Constraint("Horizontal", 0))
sketch3.addConstraint(Sketcher.Constraint("Vertical", 1))
sketch3.addConstraint(Sketcher.Constraint("Horizontal", 2))
sketch3.addConstraint(Sketcher.Constraint("Vertical", 3))
sketch3.addConstraint(Sketcher.Constraint("Horizontal", 4))
sketch3.addConstraint(Sketcher.Constraint("Vertical", 6))
sketch3.addConstraint(Sketcher.Constraint("Horizontal", 7))
sketch3.addConstraint(Sketcher.Constraint("Vertical", 8))
sketch3.addConstraint(Sketcher.Constraint("Horizontal", 9))
sketch3.addConstraint(Sketcher.Constraint("Vertical", 10))
sketch3.addConstraint(Sketcher.Constraint("Vertical", 15))
sketch3.addConstraint(Sketcher.Constraint("Horizontal", 16))
sketch3.addConstraint(Sketcher.Constraint("Vertical", 17))
sketch3.addConstraint(Sketcher.Constraint("Horizontal", 18))
sketch3.addConstraint(Sketcher.Constraint("Vertical", 19))
sketch3.addConstraint(Sketcher.Constraint("Horizontal", 27))
sketch3.addConstraint(Sketcher.Constraint("Vertical", 28))
sketch3.addConstraint(Sketcher.Constraint("Horizontal", 54))
sketch3.addConstraint(Sketcher.Constraint("Vertical", 55))
sketch3.addConstraint(Sketcher.Constraint("Horizontal", 56))
sketch3.addConstraint(Sketcher.Constraint("Horizontal", 62))
sketch3.addConstraint(Sketcher.Constraint("Vertical", 63))
sketch3.addConstraint(Sketcher.Constraint("Vertical", 74))
sketch3.addConstraint(Sketcher.Constraint("Horizontal", 75))
sketch3.addConstraint(Sketcher.Constraint("Horizontal", 2, 2, 8, 2))
sketch3.addConstraint(Sketcher.Constraint("Vertical", 6, 2, 9, 2))
sketch3.addConstraint(Sketcher.Constraint("DistanceY", 15, 1, 15, 2, 0.08))
sketch3.addConstraint(Sketcher.Constraint("DistanceX", 4, 2, 4, 1, 0.031))
sketch3.addConstraint(Sketcher.Constraint("DistanceX", 16, 1, 16, 2, 0.126))
sketch3.addConstraint(Sketcher.Constraint("DistanceX", 56, 1, 56, 2, 0.017))
sketch3.addConstraint(Sketcher.Constraint("DistanceY", 8, 2, 8, 1, 0.201))
sketch3.addConstraint(Sketcher.Constraint("DistanceY", 0, 2, -1, 1, 0.15))
sketch3.addConstraint(Sketcher.Constraint("DistanceY", -1, 1, 17, 2, 0.15))
sketch3.addConstraint(Sketcher.Constraint("DistanceY", 28, 2, 1, 2, 0.02))
sketch3.addConstraint(Sketcher.Constraint("DistanceX", 0, 1, 0, 2, 0.1464))
sketch3.addConstraint(Sketcher.Constraint("DistanceX", 7, 1, 7, 2, 0.0545))
pad3 = body.newObject("PartDesign::Pad", "Pad002")
pad3.Profile = sketch3
pad3.Length = 0.02
doc.recompute()

fillet = body.newObject("PartDesign::Fillet", "Fillet")
fillet.Base = (pad3, edges_at(pad3, [
    (-0.775, 0, 0.225),
    (-0.775, 0, -0.225),
    (0.775, 0, 0.225),
    (0.775, 0, -0.225),
]))
fillet.Radius = 0.02

doc.recompute()
